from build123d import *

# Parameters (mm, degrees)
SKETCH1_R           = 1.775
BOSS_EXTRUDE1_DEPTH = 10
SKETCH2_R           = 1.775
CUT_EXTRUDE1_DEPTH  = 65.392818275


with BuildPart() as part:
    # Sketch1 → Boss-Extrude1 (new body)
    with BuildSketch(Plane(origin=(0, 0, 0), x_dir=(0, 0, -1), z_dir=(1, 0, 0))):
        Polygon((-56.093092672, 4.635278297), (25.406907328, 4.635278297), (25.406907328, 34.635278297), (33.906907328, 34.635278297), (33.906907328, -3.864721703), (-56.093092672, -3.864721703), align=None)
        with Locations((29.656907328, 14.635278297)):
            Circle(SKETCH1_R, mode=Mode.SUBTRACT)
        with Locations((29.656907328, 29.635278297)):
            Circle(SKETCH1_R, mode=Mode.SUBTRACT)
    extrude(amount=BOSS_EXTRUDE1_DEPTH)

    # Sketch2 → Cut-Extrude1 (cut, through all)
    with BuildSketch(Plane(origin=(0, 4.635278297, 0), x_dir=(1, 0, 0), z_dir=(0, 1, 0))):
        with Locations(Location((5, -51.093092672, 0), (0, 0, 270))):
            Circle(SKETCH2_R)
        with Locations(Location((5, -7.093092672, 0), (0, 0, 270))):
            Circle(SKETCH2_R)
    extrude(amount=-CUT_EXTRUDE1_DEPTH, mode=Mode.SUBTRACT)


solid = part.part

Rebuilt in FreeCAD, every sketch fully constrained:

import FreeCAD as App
import Part
import Sketcher


def add_polygon(sketch, points):
    """Adds a closed chain of lines whose ends are joined by coincident constraints."""
    first, n = sketch.GeometryCount, len(points)
    for a, b in zip(points, points[1:] + points[:1]):
        sketch.addGeometry(Part.LineSegment(App.Vector(*a, 0), App.Vector(*b, 0)), False)
    for i in range(n):
        sketch.addConstraint(Sketcher.Constraint("Coincident", first + i, 2, first + (i + 1) % n, 1))

doc = App.newDocument("Part")
body = doc.addObject("PartDesign::Body", "Body")

# Sketch on YZ plane
sketch1 = body.newObject("Sketcher::SketchObject", "Sketch")
sketch1.AttachmentSupport = (doc.getObject("YZ_Plane"), [""])
sketch1.MapMode = "FlatFace"
add_polygon(sketch1, [(4.6, -25.4), (4.6, 56.1), (-3.9, 56.1), (-3.9, -33.9), (34.6, -33.9), (34.6, -25.4)])  # lines 0-5
sketch1.addGeometry(Part.Circle(App.Vector(14.6, -29.7, 0), App.Vector(0, 0, 1), 1.8), False)  # 6
sketch1.addGeometry(Part.Circle(App.Vector(29.6, -29.7, 0), App.Vector(0, 0, 1), 1.8), False)  # 7
sketch1.addConstraint(Sketcher.Constraint("Vertical", 0))
sketch1.addConstraint(Sketcher.Constraint("Horizontal", 1))
sketch1.addConstraint(Sketcher.Constraint("Vertical", 2))
sketch1.addConstraint(Sketcher.Constraint("Horizontal", 3))
sketch1.addConstraint(Sketcher.Constraint("Vertical", 4))
sketch1.addConstraint(Sketcher.Constraint("Horizontal", 5))
sketch1.addConstraint(Sketcher.Constraint("Equal", 6, 7))
sketch1.addConstraint(Sketcher.Constraint("Horizontal", 6, 3, 7, 3))
sketch1.addConstraint(Sketcher.Constraint("Equal", 1, 4))
sketch1.addConstraint(Sketcher.Constraint("Diameter", 6, 3.55))
sketch1.addConstraint(Sketcher.Constraint("DistanceX", 5, 2, 5, 1, 30.0))
sketch1.addConstraint(Sketcher.Constraint("DistanceY", 2, 2, 2, 1, 90.0))
sketch1.addConstraint(Sketcher.Constraint("DistanceX", 1, 2, 1, 1, 8.5))
sketch1.addConstraint(Sketcher.Constraint("DistanceX", 6, 3, 7, 3, 15.0))
sketch1.addConstraint(Sketcher.Constraint("DistanceX", 0, 2, 6, 3, 10.0))
sketch1.addConstraint(Sketcher.Constraint("DistanceY", 6, 3, 0, 2, 85.75))
sketch1.addConstraint(Sketcher.Constraint("DistanceX", -1, 1, 6, 3, 14.635278))
sketch1.addConstraint(Sketcher.Constraint("DistanceY", 6, 3, -1, 1, 29.656907))
pad1 = body.newObject("PartDesign::Pad", "Pad")
pad1.Profile = sketch1
pad1.Length = 10

# Sketch on XZ plane
sketch2 = body.newObject("Sketcher::SketchObject", "Sketch001")
sketch2.AttachmentSupport = (doc.getObject("XZ_Plane"), [""])
sketch2.MapMode = "FlatFace"
sketch2.AttachmentOffset = App.Placement(App.Vector(0, 0, -4.635278), App.Rotation())
sketch2.addGeometry(Part.Circle(App.Vector(5, 51.1, 0), App.Vector(0, 0, 1), 1.8), False)
sketch2.addGeometry(Part.Circle(App.Vector(5, 7.1, 0), App.Vector(0, 0, 1), 1.8), False)
sketch2.addConstraint(Sketcher.Constraint("Equal", 0, 1))
sketch2.addConstraint(Sketcher.Constraint("Vertical", 0, 3, 1, 3))
sketch2.addConstraint(Sketcher.Constraint("Diameter", 0, 3.55))
sketch2.addConstraint(Sketcher.Constraint("DistanceX", -1, 1, 0, 3, 5.0))
sketch2.addConstraint(Sketcher.Constraint("DistanceY", 1, 3, 0, 3, 44.0))
sketch2.addConstraint(Sketcher.Constraint("DistanceY", -1, 1, 0, 3, 51.093093))
pocket1 = body.newObject("PartDesign::Pocket", "Pocket")
pocket1.Profile = sketch2
pocket1.Type = "ThroughAll"
pocket1.Reversed = True

doc.recompute()
